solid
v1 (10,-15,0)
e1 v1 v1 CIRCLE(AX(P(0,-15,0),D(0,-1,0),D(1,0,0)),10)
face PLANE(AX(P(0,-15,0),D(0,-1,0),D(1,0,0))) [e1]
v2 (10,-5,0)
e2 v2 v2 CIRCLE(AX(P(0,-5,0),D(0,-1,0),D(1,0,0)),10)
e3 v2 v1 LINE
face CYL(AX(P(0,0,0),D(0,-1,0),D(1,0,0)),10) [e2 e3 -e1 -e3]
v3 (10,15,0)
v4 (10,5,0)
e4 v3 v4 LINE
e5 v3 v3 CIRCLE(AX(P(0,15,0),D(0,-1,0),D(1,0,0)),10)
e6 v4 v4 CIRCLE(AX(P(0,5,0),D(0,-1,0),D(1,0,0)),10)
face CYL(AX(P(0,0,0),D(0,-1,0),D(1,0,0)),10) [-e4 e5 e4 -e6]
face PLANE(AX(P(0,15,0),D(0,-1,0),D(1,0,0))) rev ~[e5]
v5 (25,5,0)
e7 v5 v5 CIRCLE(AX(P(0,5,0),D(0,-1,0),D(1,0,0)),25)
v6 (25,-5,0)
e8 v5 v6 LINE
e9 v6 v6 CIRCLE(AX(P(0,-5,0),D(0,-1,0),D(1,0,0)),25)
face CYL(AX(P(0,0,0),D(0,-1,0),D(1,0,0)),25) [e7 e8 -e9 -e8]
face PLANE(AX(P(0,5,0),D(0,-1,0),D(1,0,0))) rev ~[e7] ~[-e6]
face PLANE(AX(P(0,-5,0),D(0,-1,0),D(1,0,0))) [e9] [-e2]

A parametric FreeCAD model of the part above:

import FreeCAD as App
import Part
import Sketcher
Q = App.Units.Quantity

doc = App.newDocument("Part")
body = doc.addObject("PartDesign::Body", "Body")

sketch1 = body.newObject("Sketcher::SketchObject", "Sketch")
sketch1.AttachmentSupport = (doc.getObject("XZ_Plane"), [""])
sketch1.MapMode = "FlatFace"
sketch1.addGeometry(Part.Circle(App.Vector(0, 0, 0), App.Vector(0, 0, 1), 10), False)
sketch1.addConstraint([
    Sketcher.Constraint("Coincident", 0, 3, -1, 1),
    Sketcher.Constraint("Diameter", 0, Q("20 mm")),
])
pad1 = body.newObject("PartDesign::Pad", "Pad")
pad1.Profile = sketch1
pad1.Length = 15

sketch2 = body.newObject("Sketcher::SketchObject", "Sketch001")
sketch2.AttachmentSupport = (doc.getObject("XZ_Plane"), [""])
sketch2.MapMode = "FlatFace"
sketch2.addGeometry(Part.Circle(App.Vector(0, 0, 0), App.Vector(0, 0, 1), 10), False)
sketch2.addConstraint([
    Sketcher.Constraint("Coincident", 0, 3, -1, 1),
    Sketcher.Constraint("Diameter", 0, Q("20 mm")),
])
pad2 = body.newObject("PartDesign::Pad", "Pad001")
pad2.Profile = sketch2
pad2.Length = 15
pad2.Reversed = True

sketch3 = body.newObject("Sketcher::SketchObject", "Sketch002")
sketch3.AttachmentSupport = (doc.getObject("XZ_Plane"), [""])
sketch3.MapMode = "FlatFace"
sketch3.addGeometry([
    Part.Circle(App.Vector(0, 0, 0), App.Vector(0, 0, 1), 25),
    Part.Circle(App.Vector(0, 0, 0), App.Vector(0, 0, 1), 10),
], False)
sketch3.addConstraint([
    Sketcher.Constraint("Coincident", 0, 3, -1, 1),
    Sketcher.Constraint("Coincident", 1, 3, -1, 1),
    Sketcher.Constraint("Diameter", 0, Q("50 mm")),
    Sketcher.Constraint("Diameter", 1, Q("20 mm")),
])
pad3 = body.newObject("PartDesign::Pad", "Pad002")
pad3.Profile = sketch3
pad3.Length = 5

sketch4 = body.newObject("Sketcher::SketchObject", "Sketch003")
sketch4.AttachmentSupport = (doc.getObject("XZ_Plane"), [""])
sketch4.MapMode = "FlatFace"
sketch4.addGeometry([
    Part.Circle(App.Vector(0, 0, 0), App.Vector(0, 0, 1), 25),
    Part.Circle(App.Vector(0, 0, 0), App.Vector(0, 0, 1), 10),
], False)
sketch4.addConstraint([
    Sketcher.Constraint("Coincident", 0, 3, -1, 1),
    Sketcher.Constraint("Coincident", 1, 3, -1, 1),
    Sketcher.Constraint("Diameter", 0, Q("50 mm")),
    Sketcher.Constraint("Diameter", 1, Q("20 mm")),
])
pad4 = body.newObject("PartDesign::Pad", "Pad003")
pad4.Profile = sketch4
pad4.Length = 5
pad4.Reversed = True

doc.recompute()
